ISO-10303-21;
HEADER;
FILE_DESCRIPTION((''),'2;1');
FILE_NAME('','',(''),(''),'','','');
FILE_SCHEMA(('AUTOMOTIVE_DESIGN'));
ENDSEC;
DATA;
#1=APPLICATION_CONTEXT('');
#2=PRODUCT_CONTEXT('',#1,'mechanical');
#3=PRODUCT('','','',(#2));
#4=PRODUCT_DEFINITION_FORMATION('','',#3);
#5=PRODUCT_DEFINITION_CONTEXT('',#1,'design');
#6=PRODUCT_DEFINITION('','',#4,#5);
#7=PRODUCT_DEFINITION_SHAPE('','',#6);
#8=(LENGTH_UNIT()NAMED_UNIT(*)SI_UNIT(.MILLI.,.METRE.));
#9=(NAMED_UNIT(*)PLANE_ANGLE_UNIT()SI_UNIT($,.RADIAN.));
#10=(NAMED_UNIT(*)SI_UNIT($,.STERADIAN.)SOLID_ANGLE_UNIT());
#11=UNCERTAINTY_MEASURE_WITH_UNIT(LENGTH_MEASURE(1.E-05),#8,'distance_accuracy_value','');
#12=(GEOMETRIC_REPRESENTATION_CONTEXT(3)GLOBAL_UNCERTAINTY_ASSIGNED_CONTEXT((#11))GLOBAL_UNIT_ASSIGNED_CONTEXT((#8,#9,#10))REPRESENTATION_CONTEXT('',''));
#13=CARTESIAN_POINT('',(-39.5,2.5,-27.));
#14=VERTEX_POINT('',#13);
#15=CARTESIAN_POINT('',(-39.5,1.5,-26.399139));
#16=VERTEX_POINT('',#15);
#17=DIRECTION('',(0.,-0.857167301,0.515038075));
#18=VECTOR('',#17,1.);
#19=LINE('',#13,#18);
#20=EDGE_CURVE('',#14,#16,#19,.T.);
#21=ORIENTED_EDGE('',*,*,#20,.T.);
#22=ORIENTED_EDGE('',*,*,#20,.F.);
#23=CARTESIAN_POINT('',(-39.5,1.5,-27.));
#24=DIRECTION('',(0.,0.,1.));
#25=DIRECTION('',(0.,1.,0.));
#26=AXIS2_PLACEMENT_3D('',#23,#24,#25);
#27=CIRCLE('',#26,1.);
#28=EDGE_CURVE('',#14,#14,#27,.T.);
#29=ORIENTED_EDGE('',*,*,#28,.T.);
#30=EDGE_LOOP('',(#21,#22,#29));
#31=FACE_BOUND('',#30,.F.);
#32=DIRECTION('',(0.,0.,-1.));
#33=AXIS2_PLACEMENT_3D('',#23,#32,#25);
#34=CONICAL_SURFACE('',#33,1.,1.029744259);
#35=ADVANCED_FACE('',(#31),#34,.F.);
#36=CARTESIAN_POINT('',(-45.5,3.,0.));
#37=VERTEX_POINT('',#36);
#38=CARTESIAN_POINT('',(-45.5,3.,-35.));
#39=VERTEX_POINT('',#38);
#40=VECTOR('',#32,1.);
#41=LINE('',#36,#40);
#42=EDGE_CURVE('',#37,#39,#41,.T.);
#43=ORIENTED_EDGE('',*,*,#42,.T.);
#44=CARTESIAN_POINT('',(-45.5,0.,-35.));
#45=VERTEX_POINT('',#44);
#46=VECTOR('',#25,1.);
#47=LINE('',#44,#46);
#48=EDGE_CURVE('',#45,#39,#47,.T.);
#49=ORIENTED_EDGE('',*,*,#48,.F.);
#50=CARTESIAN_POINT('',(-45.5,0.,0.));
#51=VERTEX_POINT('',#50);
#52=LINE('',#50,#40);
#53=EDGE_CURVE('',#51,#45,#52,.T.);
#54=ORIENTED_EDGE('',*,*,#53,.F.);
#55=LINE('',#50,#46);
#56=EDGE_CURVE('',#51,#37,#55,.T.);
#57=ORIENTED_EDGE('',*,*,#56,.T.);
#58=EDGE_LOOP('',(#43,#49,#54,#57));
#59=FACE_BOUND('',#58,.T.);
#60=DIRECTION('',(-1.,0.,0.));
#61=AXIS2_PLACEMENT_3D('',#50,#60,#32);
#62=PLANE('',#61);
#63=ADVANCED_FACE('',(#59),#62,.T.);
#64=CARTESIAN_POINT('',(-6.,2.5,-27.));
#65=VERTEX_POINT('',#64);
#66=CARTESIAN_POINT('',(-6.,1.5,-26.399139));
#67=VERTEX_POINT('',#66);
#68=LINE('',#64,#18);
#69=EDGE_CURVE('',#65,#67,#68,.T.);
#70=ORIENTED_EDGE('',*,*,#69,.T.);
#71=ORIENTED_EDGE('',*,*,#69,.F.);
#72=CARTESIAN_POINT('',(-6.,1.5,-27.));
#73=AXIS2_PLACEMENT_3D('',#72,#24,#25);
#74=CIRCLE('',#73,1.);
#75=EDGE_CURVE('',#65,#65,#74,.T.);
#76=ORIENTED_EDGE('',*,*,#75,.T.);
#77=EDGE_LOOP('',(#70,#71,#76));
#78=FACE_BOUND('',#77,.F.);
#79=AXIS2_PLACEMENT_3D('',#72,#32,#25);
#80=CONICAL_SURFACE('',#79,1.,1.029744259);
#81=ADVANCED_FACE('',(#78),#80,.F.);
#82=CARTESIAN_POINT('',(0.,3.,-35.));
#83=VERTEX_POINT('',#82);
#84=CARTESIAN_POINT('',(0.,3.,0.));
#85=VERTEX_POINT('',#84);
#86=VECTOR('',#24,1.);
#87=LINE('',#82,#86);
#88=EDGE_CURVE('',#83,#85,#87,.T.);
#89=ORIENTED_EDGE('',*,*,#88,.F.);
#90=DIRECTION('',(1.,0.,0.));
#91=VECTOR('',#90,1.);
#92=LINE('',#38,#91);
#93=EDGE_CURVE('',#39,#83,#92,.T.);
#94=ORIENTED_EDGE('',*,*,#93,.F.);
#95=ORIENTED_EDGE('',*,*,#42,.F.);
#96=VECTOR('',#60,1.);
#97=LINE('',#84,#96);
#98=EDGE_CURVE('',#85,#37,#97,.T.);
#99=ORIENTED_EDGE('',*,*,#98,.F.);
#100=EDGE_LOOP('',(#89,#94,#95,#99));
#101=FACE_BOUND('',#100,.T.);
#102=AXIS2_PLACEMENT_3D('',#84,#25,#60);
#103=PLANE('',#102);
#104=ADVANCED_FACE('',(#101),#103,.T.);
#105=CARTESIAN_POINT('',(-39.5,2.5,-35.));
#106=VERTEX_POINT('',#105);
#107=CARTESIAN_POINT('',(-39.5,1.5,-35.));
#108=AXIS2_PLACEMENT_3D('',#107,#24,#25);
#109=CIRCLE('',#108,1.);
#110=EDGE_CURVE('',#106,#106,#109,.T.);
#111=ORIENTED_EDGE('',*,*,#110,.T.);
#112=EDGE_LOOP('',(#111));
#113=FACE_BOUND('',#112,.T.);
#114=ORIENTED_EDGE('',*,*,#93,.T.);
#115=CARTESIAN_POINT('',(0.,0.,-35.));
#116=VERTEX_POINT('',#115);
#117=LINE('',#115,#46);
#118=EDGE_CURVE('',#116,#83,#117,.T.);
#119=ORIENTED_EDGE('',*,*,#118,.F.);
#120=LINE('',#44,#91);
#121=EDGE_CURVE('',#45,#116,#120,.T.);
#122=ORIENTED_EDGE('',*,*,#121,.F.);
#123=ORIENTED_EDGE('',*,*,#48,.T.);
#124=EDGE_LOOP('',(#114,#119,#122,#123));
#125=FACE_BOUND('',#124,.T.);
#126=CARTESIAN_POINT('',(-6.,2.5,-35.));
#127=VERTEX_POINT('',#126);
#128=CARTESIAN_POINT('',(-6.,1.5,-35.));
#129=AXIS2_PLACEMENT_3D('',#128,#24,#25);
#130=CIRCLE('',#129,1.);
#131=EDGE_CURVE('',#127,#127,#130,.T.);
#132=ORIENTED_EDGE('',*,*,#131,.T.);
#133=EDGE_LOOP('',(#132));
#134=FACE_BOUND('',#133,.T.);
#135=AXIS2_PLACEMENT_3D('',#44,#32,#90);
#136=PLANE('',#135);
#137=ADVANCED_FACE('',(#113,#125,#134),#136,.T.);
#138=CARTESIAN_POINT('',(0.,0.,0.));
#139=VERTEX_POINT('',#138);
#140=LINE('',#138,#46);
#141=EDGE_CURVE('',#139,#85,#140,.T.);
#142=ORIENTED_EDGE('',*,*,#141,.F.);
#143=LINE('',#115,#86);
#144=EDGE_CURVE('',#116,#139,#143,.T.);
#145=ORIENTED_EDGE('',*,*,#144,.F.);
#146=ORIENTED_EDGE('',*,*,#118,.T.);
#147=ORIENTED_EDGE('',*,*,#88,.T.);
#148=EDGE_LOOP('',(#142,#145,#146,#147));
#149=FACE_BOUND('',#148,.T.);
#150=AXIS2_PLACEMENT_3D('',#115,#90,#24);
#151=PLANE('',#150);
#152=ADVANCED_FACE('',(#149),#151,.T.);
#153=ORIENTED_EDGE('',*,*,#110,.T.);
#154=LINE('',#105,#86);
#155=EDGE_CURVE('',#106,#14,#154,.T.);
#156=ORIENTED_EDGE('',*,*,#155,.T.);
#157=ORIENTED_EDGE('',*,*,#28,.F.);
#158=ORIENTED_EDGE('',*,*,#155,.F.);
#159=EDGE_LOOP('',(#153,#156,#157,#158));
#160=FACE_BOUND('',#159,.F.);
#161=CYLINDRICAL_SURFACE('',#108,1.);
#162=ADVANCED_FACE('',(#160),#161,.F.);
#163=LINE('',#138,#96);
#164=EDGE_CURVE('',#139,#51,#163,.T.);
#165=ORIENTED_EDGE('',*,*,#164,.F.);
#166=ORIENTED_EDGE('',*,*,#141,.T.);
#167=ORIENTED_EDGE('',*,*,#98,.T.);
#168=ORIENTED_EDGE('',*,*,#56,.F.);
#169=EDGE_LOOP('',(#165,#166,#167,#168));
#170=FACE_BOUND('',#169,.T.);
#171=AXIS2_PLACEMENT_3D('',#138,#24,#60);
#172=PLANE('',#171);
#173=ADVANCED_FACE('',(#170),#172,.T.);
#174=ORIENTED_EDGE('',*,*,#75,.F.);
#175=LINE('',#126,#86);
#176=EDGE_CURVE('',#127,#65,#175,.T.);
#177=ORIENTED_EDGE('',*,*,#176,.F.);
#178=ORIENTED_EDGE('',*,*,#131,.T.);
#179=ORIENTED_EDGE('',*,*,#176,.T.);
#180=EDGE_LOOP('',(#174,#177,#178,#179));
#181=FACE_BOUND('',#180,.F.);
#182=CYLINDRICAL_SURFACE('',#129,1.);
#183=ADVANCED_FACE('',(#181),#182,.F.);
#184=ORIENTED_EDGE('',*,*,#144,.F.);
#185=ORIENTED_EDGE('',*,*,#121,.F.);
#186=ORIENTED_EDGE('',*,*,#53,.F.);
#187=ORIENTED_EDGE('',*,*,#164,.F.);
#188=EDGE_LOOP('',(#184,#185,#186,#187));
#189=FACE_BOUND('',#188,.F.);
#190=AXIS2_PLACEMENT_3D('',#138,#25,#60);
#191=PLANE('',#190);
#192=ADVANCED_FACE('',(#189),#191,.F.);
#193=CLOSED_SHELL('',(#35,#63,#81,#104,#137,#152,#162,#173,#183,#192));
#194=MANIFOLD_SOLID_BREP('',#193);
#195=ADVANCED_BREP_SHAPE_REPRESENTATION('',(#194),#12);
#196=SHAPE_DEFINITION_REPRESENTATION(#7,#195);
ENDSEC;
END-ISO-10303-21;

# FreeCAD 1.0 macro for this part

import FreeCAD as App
import Part
import Sketcher

V = App.Vector


def add_polygon(sketch, points):
    """Adds a closed chain of lines whose ends are joined by coincident constraints."""
    first, n = sketch.GeometryCount, len(points)
    for a, b in zip(points, points[1:] + points[:1]):
        sketch.addGeometry(Part.LineSegment(App.Vector(*a, 0), App.Vector(*b, 0)), False)
    for i in range(n):
        sketch.addConstraint(Sketcher.Constraint("Coincident", first + i, 2, first + (i + 1) % n, 1))

doc = App.newDocument("Part")
body = doc.addObject("PartDesign::Body", "Body")

sketch1 = body.newObject("Sketcher::SketchObject", "Sketch")
sketch1.AttachmentSupport = (doc.getObject("XZ_Plane"), [""])
sketch1.MapMode = "FlatFace"
add_polygon(sketch1, [(-46, 0), (0, 0), (0, -35), (-46, -35)])
sketch1.addConstraint([
    Sketcher.Constraint("Horizontal", 0),
    Sketcher.Constraint("Vertical", 1),
    Sketcher.Constraint("Horizontal", 2),
    Sketcher.Constraint("Vertical", 3),
    Sketcher.Constraint("Coincident", 0, 2, -1, 1),
    Sketcher.Constraint("DistanceY", 1, 2, 1, 1, 35.0),
    Sketcher.Constraint("DistanceX", 0, 1, 0, 2, 45.5),
])
pad1 = body.newObject("PartDesign::Pad", "Pad")
pad1.Profile = sketch1
pad1.Length = 3
pad1.Reversed = True

sketch2 = body.newObject("Sketcher::SketchObject", "Sketch001")
sketch2.AttachmentSupport = (doc.getObject("XY_Plane"), [""])
sketch2.MapMode = "FlatFace"
sketch2.AttachmentOffset = App.Placement(V(0, 0, -35), App.Rotation())
sketch2.addGeometry([
    Part.Circle(V(-39.5, 1.5, 0), V(0, 0, 1), 1),
    Part.Circle(V(-6, 1.5, 0), V(0, 0, 1), 1),
], False)
sketch2.addConstraint([
    Sketcher.Constraint("Equal", 0, 1),
    Sketcher.Constraint("Horizontal", 0, 3, 1, 3),
    Sketcher.Constraint("Diameter", 0, 2.0),
    Sketcher.Constraint("DistanceX", 1, 3, -1, 1, 6.0),
    Sketcher.Constraint("DistanceX", 0, 3, -1, 1, 39.5),
    Sketcher.Constraint("DistanceY", -1, 1, 0, 3, 1.5),
])
doc.recompute()
hole = body.newObject("PartDesign::Hole", "Hole")
hole.Profile = sketch2
hole.ThreadType = "None"
hole.Diameter = 2
hole.DepthType = "Dimension"
hole.Depth = 8
hole.DrillPoint = "Angled"
hole.DrillPointAngle = 118
hole.Reversed = True

doc.recompute()
